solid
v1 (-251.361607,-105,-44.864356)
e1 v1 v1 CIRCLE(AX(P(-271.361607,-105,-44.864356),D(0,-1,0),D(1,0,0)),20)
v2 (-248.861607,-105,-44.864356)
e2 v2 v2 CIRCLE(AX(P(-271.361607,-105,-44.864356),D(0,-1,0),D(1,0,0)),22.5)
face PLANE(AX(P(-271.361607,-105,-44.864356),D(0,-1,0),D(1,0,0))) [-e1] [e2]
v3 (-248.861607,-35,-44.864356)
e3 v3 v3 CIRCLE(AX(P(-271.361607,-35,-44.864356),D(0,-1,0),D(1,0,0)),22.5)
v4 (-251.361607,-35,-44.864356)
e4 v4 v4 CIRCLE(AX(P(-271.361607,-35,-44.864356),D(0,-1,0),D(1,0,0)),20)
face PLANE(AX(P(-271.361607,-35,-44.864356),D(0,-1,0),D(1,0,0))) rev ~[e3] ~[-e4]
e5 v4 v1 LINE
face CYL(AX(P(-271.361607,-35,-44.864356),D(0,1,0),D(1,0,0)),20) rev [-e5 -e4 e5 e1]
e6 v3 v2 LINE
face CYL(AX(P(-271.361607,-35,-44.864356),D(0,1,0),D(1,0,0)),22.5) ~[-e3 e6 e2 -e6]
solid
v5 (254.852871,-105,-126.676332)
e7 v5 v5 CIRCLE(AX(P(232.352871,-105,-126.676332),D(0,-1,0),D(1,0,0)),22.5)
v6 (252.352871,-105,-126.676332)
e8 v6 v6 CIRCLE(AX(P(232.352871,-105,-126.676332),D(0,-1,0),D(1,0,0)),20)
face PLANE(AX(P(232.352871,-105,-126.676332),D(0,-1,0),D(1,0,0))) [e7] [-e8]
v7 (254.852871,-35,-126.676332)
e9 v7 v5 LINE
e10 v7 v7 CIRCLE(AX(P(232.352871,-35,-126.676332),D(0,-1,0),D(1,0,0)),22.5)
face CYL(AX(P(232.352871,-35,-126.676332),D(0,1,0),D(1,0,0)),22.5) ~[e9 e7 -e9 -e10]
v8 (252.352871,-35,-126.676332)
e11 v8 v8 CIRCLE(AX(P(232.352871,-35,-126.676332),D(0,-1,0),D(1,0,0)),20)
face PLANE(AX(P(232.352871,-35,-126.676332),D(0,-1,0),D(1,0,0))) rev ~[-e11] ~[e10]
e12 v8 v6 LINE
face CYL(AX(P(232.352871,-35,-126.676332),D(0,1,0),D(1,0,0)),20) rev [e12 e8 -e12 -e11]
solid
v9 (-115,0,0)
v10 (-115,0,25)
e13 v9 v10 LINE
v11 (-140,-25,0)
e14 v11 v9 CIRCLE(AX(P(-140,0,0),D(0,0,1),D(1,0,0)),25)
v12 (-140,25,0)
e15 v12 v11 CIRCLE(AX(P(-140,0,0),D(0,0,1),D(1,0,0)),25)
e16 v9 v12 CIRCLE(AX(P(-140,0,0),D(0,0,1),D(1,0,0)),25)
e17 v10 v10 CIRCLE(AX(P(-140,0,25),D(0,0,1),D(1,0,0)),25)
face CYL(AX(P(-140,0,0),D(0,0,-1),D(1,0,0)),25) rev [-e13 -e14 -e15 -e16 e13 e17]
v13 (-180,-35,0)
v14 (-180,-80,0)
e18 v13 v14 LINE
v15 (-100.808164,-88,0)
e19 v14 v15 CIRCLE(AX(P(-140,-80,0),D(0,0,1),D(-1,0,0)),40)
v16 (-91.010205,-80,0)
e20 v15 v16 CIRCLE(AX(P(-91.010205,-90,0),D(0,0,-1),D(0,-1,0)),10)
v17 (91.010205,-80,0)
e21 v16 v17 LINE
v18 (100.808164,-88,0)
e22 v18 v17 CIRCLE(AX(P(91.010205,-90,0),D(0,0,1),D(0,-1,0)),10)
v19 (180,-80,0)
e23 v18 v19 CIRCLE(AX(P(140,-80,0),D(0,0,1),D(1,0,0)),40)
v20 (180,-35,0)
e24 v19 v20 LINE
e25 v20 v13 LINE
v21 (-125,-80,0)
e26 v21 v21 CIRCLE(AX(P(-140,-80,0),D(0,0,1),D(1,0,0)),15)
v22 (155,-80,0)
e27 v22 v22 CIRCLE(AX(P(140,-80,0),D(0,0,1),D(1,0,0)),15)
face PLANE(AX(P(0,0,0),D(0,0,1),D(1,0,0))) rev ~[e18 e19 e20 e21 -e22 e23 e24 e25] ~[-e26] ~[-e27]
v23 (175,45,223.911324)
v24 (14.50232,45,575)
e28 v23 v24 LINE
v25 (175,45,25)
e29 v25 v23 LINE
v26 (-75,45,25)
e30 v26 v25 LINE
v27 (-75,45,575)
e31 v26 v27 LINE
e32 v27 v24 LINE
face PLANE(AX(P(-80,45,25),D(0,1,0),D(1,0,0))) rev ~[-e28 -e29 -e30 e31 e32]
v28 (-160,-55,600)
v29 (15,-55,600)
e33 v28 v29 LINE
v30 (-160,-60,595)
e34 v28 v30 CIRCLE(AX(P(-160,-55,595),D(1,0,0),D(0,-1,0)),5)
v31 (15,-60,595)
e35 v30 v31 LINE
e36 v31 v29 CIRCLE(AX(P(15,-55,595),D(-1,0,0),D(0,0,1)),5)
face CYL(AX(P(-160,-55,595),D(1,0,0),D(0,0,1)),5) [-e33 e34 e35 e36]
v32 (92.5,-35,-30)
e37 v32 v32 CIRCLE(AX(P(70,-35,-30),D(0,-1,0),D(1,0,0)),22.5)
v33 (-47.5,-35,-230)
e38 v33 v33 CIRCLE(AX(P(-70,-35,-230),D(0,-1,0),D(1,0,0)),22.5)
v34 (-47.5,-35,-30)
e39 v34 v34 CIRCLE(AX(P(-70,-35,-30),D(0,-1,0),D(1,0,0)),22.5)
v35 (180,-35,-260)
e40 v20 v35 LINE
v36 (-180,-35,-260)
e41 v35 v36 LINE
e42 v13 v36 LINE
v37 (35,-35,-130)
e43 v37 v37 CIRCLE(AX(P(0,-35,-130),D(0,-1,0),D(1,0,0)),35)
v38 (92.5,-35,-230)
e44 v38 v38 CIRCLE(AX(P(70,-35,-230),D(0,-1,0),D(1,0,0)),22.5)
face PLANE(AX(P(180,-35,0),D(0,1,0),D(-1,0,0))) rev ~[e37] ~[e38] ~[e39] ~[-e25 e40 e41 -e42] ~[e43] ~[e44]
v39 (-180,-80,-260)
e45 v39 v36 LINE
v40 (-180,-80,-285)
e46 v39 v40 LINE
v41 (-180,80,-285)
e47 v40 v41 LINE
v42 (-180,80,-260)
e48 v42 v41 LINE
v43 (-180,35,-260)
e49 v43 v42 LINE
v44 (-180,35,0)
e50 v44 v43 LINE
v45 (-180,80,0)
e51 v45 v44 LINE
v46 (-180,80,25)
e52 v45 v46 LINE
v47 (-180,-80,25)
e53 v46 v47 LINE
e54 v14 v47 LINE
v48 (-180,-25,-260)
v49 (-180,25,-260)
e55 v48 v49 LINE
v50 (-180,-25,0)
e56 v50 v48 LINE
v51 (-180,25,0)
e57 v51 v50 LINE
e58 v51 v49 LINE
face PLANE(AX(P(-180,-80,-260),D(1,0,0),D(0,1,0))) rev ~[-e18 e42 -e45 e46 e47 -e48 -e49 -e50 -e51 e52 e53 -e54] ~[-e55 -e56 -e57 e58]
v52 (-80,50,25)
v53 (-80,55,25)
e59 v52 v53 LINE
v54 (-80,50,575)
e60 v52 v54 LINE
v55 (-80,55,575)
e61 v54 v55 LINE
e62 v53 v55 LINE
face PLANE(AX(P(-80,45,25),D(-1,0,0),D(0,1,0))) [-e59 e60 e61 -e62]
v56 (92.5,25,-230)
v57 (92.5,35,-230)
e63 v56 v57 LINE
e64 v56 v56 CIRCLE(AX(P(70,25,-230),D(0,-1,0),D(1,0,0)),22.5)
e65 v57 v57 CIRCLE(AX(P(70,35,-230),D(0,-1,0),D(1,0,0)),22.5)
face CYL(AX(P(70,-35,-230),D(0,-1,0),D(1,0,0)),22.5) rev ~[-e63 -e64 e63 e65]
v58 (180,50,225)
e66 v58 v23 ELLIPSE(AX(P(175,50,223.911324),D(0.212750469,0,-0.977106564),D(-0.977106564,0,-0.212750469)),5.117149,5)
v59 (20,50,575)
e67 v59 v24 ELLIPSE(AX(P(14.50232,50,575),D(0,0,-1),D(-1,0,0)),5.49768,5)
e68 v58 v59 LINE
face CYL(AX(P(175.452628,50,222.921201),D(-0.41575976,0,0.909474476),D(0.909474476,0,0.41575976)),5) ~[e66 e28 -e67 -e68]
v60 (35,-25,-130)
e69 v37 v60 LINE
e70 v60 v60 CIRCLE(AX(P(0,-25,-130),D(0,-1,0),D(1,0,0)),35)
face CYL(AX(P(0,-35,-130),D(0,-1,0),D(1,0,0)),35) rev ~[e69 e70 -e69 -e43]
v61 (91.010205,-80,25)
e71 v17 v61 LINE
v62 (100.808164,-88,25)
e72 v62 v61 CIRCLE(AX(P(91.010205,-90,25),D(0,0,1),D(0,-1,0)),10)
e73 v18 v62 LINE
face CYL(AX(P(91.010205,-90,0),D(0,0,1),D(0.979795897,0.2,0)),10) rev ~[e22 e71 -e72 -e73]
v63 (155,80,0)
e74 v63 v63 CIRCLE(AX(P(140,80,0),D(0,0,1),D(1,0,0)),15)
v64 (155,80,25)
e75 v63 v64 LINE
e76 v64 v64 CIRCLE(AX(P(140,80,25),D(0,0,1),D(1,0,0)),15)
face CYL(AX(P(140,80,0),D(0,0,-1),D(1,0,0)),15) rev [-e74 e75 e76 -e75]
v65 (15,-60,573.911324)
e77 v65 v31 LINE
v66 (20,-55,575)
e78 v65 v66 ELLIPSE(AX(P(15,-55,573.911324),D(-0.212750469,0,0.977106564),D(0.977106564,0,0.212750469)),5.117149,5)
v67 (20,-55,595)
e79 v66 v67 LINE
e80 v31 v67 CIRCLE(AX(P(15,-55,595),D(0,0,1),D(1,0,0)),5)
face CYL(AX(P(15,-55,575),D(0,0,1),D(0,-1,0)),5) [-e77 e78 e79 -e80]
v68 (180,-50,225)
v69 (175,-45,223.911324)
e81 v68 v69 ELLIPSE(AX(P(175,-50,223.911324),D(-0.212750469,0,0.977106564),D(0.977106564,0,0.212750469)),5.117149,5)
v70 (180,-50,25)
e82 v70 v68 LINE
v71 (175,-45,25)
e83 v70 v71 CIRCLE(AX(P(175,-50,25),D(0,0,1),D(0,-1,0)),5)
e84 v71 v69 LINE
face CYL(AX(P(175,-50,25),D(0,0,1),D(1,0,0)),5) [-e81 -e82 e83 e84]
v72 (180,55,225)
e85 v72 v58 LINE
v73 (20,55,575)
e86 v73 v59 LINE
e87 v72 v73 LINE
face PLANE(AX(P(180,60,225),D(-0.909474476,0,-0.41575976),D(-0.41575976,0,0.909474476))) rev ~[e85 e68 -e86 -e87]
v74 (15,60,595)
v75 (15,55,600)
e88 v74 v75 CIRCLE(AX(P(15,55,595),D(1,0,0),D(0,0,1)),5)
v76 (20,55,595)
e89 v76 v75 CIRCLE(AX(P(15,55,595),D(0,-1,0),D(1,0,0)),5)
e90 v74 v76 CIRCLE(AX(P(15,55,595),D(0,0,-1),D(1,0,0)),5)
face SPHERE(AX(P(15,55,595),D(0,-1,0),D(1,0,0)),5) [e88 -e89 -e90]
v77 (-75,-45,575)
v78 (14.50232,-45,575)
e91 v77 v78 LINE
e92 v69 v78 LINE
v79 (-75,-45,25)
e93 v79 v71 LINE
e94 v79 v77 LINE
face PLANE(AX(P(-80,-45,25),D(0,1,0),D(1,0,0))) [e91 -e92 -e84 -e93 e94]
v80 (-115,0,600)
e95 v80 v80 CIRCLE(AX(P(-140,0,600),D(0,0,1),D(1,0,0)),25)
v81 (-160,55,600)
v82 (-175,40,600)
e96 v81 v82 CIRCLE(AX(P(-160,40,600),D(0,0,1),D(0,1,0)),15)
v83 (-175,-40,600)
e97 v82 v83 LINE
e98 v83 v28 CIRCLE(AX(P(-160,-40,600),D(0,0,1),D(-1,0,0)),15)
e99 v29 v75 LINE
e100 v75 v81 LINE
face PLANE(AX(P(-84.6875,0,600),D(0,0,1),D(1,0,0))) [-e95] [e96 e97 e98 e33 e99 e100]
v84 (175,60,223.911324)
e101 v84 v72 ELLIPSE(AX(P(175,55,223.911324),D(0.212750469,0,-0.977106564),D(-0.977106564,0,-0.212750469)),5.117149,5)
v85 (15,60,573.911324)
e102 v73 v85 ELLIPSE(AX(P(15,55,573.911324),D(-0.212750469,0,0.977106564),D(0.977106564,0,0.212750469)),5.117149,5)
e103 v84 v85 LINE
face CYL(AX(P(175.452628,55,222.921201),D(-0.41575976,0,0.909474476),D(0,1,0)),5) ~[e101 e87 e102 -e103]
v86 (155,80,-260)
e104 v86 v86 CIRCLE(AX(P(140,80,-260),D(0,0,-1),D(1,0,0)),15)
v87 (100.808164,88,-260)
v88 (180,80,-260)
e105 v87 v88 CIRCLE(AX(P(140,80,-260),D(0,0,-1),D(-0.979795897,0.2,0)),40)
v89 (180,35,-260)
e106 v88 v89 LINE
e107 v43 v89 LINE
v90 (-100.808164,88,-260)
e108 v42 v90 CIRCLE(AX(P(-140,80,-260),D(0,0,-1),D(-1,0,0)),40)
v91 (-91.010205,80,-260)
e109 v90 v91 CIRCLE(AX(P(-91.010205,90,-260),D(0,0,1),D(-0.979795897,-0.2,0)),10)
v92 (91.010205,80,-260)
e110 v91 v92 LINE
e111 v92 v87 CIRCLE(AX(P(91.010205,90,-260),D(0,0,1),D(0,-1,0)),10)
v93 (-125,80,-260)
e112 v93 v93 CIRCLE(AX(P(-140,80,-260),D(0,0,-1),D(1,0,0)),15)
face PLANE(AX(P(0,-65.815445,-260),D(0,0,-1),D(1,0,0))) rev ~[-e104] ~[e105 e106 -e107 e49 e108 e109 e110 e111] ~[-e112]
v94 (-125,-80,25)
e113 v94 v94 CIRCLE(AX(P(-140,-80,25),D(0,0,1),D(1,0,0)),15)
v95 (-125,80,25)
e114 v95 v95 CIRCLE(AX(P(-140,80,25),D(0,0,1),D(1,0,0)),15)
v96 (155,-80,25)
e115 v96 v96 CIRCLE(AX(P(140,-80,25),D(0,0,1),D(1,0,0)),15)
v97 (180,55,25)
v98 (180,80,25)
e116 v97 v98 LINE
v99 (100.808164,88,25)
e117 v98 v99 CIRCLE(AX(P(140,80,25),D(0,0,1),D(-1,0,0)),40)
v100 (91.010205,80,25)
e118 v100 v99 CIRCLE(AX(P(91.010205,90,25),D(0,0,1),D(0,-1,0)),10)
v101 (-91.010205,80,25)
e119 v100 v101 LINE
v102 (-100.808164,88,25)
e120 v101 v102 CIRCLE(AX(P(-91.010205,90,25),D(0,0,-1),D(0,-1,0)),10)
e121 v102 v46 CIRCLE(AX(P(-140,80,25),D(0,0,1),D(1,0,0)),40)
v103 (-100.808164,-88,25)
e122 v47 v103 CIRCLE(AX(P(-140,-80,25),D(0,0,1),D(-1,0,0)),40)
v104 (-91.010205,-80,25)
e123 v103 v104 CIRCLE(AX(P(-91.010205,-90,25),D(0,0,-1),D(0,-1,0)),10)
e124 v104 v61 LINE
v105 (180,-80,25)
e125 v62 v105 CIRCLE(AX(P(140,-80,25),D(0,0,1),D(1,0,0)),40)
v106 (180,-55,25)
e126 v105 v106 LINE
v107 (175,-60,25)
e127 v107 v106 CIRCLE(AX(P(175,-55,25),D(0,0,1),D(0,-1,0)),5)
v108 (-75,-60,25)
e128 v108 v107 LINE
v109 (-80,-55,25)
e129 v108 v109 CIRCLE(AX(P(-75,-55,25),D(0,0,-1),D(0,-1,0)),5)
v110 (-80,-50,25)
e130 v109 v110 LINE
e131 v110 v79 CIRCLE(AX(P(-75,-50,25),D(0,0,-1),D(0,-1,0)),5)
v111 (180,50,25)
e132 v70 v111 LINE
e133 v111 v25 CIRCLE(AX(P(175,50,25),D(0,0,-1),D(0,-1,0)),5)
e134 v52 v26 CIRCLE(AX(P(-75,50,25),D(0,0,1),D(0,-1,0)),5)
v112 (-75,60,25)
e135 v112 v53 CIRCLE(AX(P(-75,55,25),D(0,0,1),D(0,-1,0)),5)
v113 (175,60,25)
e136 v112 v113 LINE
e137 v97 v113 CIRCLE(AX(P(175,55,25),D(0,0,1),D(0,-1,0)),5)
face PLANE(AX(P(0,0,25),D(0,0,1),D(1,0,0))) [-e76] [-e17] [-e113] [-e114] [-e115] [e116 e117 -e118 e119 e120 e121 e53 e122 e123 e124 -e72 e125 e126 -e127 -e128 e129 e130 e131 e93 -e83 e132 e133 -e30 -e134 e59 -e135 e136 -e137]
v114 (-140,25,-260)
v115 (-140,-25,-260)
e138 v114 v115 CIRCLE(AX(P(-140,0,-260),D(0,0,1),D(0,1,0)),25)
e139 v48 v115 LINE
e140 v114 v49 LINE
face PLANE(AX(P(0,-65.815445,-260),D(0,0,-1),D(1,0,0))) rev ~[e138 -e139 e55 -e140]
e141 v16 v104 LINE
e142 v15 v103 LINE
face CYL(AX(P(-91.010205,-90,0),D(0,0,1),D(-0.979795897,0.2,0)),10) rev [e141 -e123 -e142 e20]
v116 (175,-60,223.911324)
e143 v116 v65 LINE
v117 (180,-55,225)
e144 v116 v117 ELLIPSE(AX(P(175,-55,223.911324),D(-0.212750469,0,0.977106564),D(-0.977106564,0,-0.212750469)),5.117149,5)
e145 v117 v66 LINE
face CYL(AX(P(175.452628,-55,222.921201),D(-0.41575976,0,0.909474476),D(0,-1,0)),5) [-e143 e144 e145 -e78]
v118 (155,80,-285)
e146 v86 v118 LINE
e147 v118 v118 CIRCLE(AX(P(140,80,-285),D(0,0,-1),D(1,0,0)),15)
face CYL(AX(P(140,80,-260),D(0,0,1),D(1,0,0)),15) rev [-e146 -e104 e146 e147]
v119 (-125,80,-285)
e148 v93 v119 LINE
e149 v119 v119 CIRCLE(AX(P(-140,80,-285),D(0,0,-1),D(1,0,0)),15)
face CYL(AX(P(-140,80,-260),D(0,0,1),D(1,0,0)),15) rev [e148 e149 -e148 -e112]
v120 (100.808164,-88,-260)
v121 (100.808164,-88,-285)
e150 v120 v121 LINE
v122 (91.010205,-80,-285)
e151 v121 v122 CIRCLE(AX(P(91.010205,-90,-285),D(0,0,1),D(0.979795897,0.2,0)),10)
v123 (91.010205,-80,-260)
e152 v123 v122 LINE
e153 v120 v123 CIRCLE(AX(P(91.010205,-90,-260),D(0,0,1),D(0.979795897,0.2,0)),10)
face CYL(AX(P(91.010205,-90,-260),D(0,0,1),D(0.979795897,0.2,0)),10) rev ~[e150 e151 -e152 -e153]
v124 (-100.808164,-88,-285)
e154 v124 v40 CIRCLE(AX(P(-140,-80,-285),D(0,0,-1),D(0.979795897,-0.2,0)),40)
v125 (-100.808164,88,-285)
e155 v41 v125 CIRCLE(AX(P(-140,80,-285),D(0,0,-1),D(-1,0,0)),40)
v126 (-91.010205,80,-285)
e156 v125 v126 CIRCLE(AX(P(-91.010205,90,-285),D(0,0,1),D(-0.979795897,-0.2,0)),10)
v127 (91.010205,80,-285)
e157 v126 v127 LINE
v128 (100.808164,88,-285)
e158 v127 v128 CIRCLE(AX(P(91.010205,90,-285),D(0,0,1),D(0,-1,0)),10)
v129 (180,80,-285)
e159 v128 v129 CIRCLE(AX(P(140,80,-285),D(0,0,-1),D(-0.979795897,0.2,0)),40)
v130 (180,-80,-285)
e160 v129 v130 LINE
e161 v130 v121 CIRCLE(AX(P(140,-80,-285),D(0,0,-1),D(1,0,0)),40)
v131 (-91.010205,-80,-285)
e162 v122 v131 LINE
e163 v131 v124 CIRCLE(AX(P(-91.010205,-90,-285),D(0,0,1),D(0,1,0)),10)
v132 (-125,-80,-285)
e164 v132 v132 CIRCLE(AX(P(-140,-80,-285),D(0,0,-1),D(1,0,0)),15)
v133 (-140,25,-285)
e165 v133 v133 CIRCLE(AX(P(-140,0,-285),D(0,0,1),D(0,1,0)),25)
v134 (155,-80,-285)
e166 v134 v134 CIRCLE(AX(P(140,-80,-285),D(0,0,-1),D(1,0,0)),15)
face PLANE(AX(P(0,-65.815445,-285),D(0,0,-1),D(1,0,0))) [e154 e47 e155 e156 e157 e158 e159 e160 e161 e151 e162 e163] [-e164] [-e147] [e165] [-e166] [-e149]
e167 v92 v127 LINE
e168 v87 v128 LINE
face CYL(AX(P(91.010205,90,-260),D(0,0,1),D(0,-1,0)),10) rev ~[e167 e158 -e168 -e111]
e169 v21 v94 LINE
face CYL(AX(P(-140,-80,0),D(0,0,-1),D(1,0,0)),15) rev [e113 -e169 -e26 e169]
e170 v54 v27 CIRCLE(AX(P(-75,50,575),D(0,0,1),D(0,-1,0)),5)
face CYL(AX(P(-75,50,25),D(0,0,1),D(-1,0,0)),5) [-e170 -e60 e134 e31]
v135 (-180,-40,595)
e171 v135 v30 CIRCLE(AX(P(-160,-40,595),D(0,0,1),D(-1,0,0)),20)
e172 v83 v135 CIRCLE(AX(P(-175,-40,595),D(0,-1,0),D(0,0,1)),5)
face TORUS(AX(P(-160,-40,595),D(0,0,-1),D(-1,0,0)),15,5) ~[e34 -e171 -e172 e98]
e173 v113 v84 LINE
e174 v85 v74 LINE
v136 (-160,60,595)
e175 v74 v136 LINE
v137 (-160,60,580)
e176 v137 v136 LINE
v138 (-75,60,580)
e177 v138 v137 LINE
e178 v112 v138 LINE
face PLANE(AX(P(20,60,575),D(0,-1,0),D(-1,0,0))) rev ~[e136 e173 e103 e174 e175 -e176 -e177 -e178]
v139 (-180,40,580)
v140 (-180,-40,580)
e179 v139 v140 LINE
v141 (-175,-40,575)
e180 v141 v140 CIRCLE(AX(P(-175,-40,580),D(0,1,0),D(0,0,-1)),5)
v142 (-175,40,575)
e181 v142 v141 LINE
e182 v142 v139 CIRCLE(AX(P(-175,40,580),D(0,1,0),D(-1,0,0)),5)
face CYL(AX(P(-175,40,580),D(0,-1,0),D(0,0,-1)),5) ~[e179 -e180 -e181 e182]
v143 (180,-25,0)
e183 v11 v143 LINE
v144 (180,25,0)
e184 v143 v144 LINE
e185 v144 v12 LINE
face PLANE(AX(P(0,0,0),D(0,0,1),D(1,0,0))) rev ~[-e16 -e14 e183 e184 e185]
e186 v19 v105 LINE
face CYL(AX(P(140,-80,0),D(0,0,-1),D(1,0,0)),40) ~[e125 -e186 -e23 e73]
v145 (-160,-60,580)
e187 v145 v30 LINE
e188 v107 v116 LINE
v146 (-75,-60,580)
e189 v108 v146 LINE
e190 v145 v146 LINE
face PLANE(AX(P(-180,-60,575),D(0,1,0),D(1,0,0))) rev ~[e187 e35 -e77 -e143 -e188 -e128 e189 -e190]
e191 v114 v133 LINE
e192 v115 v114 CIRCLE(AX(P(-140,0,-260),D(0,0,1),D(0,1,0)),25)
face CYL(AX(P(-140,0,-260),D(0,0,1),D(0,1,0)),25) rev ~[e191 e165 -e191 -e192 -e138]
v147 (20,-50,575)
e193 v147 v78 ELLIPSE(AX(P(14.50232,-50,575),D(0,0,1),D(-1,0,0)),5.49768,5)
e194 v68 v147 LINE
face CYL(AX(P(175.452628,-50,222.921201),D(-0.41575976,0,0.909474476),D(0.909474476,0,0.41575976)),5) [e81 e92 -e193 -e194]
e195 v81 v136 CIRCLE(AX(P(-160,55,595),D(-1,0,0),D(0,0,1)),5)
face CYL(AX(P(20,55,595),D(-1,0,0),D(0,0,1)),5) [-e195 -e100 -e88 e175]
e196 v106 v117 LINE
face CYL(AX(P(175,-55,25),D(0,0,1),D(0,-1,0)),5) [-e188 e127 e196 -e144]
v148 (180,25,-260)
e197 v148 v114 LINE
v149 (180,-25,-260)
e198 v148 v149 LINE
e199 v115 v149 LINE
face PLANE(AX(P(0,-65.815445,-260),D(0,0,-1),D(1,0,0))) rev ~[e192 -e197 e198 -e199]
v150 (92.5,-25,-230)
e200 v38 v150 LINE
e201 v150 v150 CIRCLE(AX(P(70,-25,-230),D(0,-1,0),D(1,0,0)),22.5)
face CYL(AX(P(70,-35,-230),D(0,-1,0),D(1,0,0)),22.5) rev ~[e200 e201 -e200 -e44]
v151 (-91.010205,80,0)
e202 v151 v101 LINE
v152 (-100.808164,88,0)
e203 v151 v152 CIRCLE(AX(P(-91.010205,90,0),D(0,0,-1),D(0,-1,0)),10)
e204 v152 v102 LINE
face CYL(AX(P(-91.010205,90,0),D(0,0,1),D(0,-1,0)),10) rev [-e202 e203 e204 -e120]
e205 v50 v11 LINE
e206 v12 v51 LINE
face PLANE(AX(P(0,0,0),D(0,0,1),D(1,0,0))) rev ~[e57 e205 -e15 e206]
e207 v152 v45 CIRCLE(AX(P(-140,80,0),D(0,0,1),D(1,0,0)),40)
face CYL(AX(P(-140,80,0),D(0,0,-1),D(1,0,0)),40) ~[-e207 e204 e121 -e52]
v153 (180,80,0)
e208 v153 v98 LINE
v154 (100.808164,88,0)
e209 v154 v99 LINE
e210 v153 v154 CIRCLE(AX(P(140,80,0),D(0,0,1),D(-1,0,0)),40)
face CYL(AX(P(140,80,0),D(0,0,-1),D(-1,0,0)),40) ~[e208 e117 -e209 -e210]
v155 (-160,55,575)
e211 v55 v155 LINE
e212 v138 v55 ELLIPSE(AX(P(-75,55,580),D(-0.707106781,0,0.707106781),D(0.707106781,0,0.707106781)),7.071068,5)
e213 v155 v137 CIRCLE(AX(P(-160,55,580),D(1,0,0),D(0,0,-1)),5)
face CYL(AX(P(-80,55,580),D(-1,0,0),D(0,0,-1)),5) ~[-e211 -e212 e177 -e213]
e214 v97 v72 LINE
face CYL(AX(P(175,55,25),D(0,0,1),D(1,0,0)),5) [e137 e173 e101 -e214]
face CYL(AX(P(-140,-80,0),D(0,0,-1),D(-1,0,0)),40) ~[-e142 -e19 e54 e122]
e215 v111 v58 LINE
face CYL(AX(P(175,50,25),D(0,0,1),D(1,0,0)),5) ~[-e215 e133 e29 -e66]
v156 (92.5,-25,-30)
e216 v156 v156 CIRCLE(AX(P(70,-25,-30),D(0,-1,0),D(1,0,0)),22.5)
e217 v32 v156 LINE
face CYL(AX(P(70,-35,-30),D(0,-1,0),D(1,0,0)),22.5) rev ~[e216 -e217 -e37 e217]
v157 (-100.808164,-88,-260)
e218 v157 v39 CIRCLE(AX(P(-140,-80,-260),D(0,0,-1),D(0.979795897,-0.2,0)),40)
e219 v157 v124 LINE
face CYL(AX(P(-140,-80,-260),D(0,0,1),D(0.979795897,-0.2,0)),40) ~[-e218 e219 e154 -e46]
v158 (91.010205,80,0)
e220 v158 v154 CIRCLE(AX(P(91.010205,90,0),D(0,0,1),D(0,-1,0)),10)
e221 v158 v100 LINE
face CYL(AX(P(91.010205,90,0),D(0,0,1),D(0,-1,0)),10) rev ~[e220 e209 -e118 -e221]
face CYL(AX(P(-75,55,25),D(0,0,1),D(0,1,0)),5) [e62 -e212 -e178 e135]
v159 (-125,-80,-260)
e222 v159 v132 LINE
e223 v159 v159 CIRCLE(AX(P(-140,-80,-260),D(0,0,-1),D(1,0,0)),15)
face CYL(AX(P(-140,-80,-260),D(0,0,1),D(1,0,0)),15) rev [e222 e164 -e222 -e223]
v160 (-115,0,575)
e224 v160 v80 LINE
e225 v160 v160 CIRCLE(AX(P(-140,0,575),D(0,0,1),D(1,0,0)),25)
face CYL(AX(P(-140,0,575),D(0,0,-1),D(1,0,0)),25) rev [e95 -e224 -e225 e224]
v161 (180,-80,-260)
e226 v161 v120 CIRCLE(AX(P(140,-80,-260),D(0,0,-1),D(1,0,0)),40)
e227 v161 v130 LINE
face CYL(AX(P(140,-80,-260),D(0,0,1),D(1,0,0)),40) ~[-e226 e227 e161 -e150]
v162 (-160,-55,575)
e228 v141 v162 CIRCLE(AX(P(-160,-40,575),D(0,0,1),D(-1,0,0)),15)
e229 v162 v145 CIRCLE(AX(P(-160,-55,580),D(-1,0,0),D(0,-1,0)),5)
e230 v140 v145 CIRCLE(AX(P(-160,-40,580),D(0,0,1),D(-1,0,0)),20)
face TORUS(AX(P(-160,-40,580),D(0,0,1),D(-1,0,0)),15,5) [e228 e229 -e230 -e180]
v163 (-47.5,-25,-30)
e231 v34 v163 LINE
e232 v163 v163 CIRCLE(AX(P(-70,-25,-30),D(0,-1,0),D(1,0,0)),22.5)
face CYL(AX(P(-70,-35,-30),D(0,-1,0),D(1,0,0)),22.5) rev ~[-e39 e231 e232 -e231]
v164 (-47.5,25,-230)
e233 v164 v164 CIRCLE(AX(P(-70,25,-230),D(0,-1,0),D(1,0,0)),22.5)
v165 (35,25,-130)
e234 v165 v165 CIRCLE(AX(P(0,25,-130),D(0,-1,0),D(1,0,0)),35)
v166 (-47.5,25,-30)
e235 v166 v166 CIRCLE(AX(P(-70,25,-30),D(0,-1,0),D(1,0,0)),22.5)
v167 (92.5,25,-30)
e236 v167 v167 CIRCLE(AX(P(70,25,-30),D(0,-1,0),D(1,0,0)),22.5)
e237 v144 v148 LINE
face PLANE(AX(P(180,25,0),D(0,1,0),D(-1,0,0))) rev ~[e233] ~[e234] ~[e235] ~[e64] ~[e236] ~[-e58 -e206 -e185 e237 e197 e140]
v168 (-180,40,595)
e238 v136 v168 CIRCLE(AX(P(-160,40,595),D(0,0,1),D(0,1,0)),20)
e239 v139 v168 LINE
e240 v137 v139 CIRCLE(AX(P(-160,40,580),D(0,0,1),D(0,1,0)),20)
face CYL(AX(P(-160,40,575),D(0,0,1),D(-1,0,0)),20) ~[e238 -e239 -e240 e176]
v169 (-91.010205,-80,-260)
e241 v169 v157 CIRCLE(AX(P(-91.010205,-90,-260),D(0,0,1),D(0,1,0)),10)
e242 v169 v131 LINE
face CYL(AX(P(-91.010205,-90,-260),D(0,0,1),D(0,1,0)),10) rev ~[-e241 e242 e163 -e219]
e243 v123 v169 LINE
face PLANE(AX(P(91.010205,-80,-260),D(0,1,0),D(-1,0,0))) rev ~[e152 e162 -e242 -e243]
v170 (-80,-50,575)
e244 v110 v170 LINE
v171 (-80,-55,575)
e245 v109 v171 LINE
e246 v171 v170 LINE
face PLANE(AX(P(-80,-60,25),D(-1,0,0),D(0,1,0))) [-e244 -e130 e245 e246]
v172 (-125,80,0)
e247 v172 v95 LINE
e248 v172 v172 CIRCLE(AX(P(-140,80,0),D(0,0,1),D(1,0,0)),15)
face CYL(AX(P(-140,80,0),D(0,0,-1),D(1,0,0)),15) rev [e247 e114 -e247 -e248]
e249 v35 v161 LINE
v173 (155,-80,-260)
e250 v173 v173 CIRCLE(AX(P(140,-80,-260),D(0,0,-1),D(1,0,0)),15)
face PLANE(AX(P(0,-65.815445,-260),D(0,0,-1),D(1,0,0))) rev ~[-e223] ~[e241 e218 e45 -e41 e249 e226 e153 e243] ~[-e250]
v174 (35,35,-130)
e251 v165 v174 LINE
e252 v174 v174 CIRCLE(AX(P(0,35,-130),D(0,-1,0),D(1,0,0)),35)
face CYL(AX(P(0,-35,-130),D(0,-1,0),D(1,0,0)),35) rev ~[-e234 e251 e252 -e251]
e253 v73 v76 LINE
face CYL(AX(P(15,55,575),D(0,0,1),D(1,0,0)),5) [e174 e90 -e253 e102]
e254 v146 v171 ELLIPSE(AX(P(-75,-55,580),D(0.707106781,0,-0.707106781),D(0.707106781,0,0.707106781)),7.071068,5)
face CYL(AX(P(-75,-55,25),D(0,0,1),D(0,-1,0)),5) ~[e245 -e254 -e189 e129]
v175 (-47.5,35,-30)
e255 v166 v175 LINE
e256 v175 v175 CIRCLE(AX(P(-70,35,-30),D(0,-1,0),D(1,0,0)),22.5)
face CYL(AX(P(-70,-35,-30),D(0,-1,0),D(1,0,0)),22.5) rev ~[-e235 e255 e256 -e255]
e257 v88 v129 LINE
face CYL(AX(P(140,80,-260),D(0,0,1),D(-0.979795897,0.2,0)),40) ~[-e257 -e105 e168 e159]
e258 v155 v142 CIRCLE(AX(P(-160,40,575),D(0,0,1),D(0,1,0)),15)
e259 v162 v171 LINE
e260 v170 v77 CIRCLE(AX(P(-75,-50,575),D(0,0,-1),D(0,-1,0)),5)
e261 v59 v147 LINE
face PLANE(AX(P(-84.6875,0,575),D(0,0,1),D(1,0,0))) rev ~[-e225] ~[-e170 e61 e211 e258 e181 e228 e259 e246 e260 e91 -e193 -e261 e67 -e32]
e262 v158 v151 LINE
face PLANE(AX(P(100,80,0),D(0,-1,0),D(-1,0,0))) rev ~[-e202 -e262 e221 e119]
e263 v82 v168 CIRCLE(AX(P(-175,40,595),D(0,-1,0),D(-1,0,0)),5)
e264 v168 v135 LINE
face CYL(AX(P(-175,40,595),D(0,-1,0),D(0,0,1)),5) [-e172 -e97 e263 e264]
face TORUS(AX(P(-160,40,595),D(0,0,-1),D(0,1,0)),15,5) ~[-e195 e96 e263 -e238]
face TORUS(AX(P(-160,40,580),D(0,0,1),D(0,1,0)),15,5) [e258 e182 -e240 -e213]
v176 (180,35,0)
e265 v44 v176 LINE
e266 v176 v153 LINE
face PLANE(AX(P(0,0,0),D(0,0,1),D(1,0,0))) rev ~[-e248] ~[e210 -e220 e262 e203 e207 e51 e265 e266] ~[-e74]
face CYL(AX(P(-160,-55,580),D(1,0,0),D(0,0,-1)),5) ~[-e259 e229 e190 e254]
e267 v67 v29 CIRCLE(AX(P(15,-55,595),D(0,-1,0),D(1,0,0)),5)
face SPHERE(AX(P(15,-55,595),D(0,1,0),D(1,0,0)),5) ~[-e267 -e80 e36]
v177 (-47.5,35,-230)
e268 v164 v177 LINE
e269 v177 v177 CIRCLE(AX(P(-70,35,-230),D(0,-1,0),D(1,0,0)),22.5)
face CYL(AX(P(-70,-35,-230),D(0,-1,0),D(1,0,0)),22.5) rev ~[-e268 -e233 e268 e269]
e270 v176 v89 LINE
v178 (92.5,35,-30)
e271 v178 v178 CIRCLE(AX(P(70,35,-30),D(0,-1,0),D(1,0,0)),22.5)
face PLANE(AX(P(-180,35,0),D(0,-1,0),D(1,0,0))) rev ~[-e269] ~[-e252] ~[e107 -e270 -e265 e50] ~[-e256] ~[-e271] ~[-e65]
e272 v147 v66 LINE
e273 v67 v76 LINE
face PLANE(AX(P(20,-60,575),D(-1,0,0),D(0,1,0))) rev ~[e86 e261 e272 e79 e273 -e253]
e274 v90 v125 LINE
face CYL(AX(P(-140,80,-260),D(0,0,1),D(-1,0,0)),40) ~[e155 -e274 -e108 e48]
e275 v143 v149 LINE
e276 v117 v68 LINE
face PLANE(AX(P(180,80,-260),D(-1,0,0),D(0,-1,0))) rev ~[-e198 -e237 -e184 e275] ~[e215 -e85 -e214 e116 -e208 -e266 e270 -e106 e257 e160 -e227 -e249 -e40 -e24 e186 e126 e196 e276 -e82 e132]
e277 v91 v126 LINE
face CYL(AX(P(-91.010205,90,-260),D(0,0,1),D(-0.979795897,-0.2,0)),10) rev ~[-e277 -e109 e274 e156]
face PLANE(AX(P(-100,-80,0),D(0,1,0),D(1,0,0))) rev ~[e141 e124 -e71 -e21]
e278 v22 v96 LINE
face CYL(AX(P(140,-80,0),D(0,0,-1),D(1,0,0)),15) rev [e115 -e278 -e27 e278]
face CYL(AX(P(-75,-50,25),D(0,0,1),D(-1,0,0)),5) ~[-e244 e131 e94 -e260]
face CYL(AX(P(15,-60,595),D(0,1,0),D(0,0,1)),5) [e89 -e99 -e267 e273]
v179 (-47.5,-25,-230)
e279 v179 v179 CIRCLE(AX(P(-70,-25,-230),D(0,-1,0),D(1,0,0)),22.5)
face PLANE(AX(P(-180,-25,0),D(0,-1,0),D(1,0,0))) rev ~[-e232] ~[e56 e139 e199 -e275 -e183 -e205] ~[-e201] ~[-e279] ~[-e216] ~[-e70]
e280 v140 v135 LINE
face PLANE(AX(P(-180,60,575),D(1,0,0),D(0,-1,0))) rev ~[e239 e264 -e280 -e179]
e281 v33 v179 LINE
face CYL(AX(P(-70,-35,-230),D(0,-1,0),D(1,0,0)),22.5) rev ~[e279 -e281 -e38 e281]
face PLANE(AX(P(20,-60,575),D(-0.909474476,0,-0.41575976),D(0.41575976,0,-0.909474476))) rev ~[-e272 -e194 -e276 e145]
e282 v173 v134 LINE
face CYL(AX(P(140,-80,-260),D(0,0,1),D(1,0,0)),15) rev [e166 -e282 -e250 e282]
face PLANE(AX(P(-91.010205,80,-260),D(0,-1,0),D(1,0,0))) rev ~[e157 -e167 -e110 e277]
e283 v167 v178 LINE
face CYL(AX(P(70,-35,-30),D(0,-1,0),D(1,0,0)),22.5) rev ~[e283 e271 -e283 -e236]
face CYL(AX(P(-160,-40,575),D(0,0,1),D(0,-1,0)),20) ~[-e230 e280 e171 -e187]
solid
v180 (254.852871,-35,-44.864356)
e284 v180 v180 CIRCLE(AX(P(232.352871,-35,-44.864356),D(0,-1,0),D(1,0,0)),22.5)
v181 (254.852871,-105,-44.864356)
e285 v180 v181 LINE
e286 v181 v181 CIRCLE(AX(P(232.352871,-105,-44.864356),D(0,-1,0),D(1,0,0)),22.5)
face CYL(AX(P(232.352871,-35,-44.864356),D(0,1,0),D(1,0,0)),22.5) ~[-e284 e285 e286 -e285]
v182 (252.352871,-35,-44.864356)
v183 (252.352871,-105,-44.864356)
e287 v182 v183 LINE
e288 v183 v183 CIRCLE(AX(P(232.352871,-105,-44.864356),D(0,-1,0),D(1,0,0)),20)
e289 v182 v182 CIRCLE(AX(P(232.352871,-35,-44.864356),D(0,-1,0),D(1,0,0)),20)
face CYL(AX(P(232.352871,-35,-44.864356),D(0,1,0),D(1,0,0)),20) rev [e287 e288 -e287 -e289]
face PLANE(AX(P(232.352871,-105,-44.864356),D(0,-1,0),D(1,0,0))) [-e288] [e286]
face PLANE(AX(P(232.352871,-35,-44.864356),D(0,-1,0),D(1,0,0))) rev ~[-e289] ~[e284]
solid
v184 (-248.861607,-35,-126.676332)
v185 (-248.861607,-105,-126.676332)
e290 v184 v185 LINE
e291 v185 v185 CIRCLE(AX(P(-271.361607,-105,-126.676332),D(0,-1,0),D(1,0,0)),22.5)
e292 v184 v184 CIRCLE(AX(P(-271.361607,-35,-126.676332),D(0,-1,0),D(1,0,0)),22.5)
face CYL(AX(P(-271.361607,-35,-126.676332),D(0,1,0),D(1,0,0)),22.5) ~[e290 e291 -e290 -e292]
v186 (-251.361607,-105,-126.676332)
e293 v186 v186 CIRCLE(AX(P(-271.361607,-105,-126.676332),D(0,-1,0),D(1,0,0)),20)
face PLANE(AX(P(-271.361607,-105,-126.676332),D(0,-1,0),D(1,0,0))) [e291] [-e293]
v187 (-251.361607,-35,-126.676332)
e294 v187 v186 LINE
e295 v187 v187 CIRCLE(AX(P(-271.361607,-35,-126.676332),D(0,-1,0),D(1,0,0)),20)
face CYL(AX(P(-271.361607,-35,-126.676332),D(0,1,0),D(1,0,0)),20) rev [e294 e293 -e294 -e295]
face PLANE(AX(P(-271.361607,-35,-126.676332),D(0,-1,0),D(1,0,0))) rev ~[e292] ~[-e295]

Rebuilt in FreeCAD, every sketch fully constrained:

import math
import FreeCAD as App
import Part
import Sketcher

V = App.Vector
Q = App.Units.Quantity


def edges_at(feature, points):
    """Names of the edges that pass closest to the given points."""
    edges = feature.Shape.Edges
    near = lambda p: min(range(len(edges)), key=lambda i: edges[i].distToShape(Part.Vertex(*p))[0])
    return sorted({f"Edge{near(p) + 1}" for p in points})


def add_polygon(sketch, points):
    """Adds a closed chain of lines whose ends are joined by coincident constraints."""
    first, n = sketch.GeometryCount, len(points)
    for a, b in zip(points, points[1:] + points[:1]):
        sketch.addGeometry(Part.LineSegment(App.Vector(*a, 0), App.Vector(*b, 0)), False)
    for i in range(n):
        sketch.addConstraint(Sketcher.Constraint("Coincident", first + i, 2, first + (i + 1) % n, 1))

doc = App.newDocument("Part")
body = doc.addObject("PartDesign::Body", "Body")

# Sketch on XY plane
sketch1 = body.newObject("Sketcher::SketchObject", "Sketch")
sketch1.AttachmentSupport = (doc.getObject("XY_Plane"), [""])
sketch1.MapMode = "FlatFace"
sketch1.addGeometry(Part.LineSegment(V(100, 80, 0), V(-100, 80, 0)), False)
sketch1.addGeometry(Part.ArcOfCircle(Part.Circle(V(-140, 80, 0), V(0, 0, 1), 40), math.radians(0), math.radians(180)), False)
sketch1.addGeometry(Part.LineSegment(V(-180, 80, 0), V(-180, -80, 0)), False)
sketch1.addGeometry(Part.ArcOfCircle(Part.Circle(V(-140, -80, 0), V(0, 0, 1), 40), math.radians(180), math.radians(360)), False)
sketch1.addGeometry(Part.LineSegment(V(-100, -80, 0), V(100, -80, 0)), False)
sketch1.addGeometry(Part.ArcOfCircle(Part.Circle(V(140, -80, 0), V(0, 0, 1), 40), math.radians(180), math.radians(360)), False)
sketch1.addGeometry(Part.LineSegment(V(180, -80, 0), V(180, 80, 0)), False)
sketch1.addGeometry(Part.ArcOfCircle(Part.Circle(V(140, 80, 0), V(0, 0, 1), 40), math.radians(0), math.radians(180)), False)
sketch1.addGeometry(Part.Circle(V(-140, -80, 0), V(0, 0, 1), 15), False)
sketch1.addGeometry(Part.Circle(V(140, -80, 0), V(0, 0, 1), 15), False)
sketch1.addGeometry(Part.Circle(V(-140, 0, 0), V(0, 0, 1), 25), False)
sketch1.addGeometry(Part.Circle(V(-140, 80, 0), V(0, 0, 1), 15), False)
sketch1.addGeometry(Part.Circle(V(140, 80, 0), V(0, 0, 1), 15), False)
sketch1.addConstraint(Sketcher.Constraint("Coincident", 0, 2, 1, 1))
sketch1.addConstraint(Sketcher.Constraint("Tangent", 1, 2, 2, 1))
sketch1.addConstraint(Sketcher.Constraint("Tangent", 2, 2, 3, 1))
sketch1.addConstraint(Sketcher.Constraint("Coincident", 3, 2, 4, 1))
sketch1.addConstraint(Sketcher.Constraint("Coincident", 4, 2, 5, 1))
sketch1.addConstraint(Sketcher.Constraint("Tangent", 5, 2, 6, 1))
sketch1.addConstraint(Sketcher.Constraint("Tangent", 6, 2, 7, 1))
sketch1.addConstraint(Sketcher.Constraint("Coincident", 7, 2, 0, 1))
sketch1.addConstraint(Sketcher.Constraint("Horizontal", 0))
sketch1.addConstraint(Sketcher.Constraint("Vertical", 2))
sketch1.addConstraint(Sketcher.Constraint("Horizontal", 4))
sketch1.addConstraint(Sketcher.Constraint("Vertical", 6))
sketch1.addConstraint(Sketcher.Constraint("Coincident", 8, 3, 3, 3))
sketch1.addConstraint(Sketcher.Constraint("Coincident", 9, 3, 5, 3))
sketch1.addConstraint(Sketcher.Constraint("Coincident", 11, 3, 1, 3))
sketch1.addConstraint(Sketcher.Constraint("Coincident", 12, 3, 7, 3))
sketch1.addConstraint(Sketcher.Constraint("Equal", 1, 3))
sketch1.addConstraint(Sketcher.Constraint("Equal", 3, 5))
sketch1.addConstraint(Sketcher.Constraint("Equal", 5, 7))
sketch1.addConstraint(Sketcher.Constraint("Equal", 8, 9))
sketch1.addConstraint(Sketcher.Constraint("Equal", 9, 11))
sketch1.addConstraint(Sketcher.Constraint("Equal", 11, 12))
sketch1.addConstraint(Sketcher.Constraint("Symmetric", 1, 3, 5, 3, -1, 1))
sketch1.addConstraint(Sketcher.Constraint("PointOnObject", 10, 3, -1))
sketch1.addConstraint(Sketcher.Constraint("Horizontal", 3, 3, 5, 3))
sketch1.addConstraint(Sketcher.Constraint("Horizontal", 1, 3, 7, 3))
sketch1.addConstraint(Sketcher.Constraint("Horizontal", 12, 3, 0, 2))
sketch1.addConstraint(Sketcher.Constraint("Horizontal", 2, 2, 3, 2))
sketch1.addConstraint(Sketcher.Constraint("Vertical", 8, 3, 10, 3))
sketch1.addConstraint(Sketcher.Constraint("Diameter", 8, Q("30 mm")))
sketch1.addConstraint(Sketcher.Constraint("Diameter", 10, Q("50 mm")))
sketch1.addConstraint(Sketcher.Constraint("Radius", 1, Q("40 mm")))
sketch1.addConstraint(Sketcher.Constraint("DistanceX", 0, 2, 0, 1, Q("200 mm")))
sketch1.addConstraint(Sketcher.Constraint("DistanceY", 2, 2, 2, 1, Q("160 mm")))
pad1 = body.newObject("PartDesign::Pad", "Pad")
pad1.Profile = sketch1
pad1.Length = 25
doc.recompute()

fillet = body.newObject("PartDesign::Fillet", "Fillet")
fillet.Base = (pad1, edges_at(pad1, [
    (-100, 80, 12.5),
    (100, 80, 12.5),
    (100, -80, 12.5),
    (-100, -80, 12.5),
]))
fillet.Radius = 10

# Sketch on XY plane
sketch2 = body.newObject("Sketcher::SketchObject", "Sketch001")
sketch2.AttachmentSupport = (doc.getObject("XY_Plane"), [""])
sketch2.MapMode = "FlatFace"
add_polygon(sketch2, [(-180, -35), (-180, -25), (180, -25), (180, -35)])  # lines 0-3
add_polygon(sketch2, [(-180, 25), (-180, 35), (180, 35), (180, 25)])  # lines 4-7
sketch2.addConstraint(Sketcher.Constraint("Vertical", 0))
sketch2.addConstraint(Sketcher.Constraint("Horizontal", 1))
sketch2.addConstraint(Sketcher.Constraint("Vertical", 2))
sketch2.addConstraint(Sketcher.Constraint("Horizontal", 3))
sketch2.addConstraint(Sketcher.Constraint("Vertical", 4))
sketch2.addConstraint(Sketcher.Constraint("Horizontal", 5))
sketch2.addConstraint(Sketcher.Constraint("Vertical", 6))
sketch2.addConstraint(Sketcher.Constraint("Horizontal", 7))
sketch2.addConstraint(Sketcher.Constraint("Symmetric", 2, 2, 4, 2, -1, 1))
sketch2.addConstraint(Sketcher.Constraint("Symmetric", 0, 2, 6, 2, -1, 1))
sketch2.addConstraint(Sketcher.Constraint("Vertical", 3, 2, 4, 2))
sketch2.addConstraint(Sketcher.Constraint("DistanceX", 1, 1, 1, 2, Q("360 mm")))
sketch2.addConstraint(Sketcher.Constraint("DistanceY", 0, 1, 0, 2, Q("10 mm")))
sketch2.addConstraint(Sketcher.Constraint("DistanceY", 0, 2, -1, 1, Q("25 mm")))
pad2 = body.newObject("PartDesign::Pad", "Pad001")
pad2.Profile = sketch2
pad2.Length = 260
pad2.Reversed = True

# Sketch on XY plane
sketch3 = body.newObject("Sketcher::SketchObject", "Sketch002")
sketch3.AttachmentSupport = (doc.getObject("XY_Plane"), [""])
sketch3.MapMode = "FlatFace"
sketch3.AttachmentOffset = App.Placement(V(0, 0, -260), App.Rotation())
sketch3.addGeometry(Part.LineSegment(V(-180, -80, 0), V(-180, 80, 0)), False)
sketch3.addGeometry(Part.ArcOfCircle(Part.Circle(V(-140, 80, 0), V(0, 0, 1), 40), math.radians(12), math.radians(180)), False)
sketch3.addGeometry(Part.ArcOfCircle(Part.Circle(V(-91, 90, 0), V(0, 0, 1), 10), math.radians(-168), math.radians(-90)), False)
sketch3.addGeometry(Part.LineSegment(V(-91, 80, 0), V(91, 80, 0)), False)
sketch3.addGeometry(Part.ArcOfCircle(Part.Circle(V(91, 90, 0), V(0, 0, 1), 10), math.radians(-90), math.radians(-12)), False)
sketch3.addGeometry(Part.ArcOfCircle(Part.Circle(V(140, 80, 0), V(0, 0, 1), 40), math.radians(0), math.radians(168)), False)
sketch3.addGeometry(Part.LineSegment(V(180, 80, 0), V(180, -80, 0)), False)
sketch3.addGeometry(Part.ArcOfCircle(Part.Circle(V(140, -80, 0), V(0, 0, 1), 40), math.radians(-168), math.radians(0)), False)
sketch3.addGeometry(Part.ArcOfCircle(Part.Circle(V(91, -90, 0), V(0, 0, 1), 10), math.radians(12), math.radians(90)), False)
sketch3.addGeometry(Part.LineSegment(V(91, -80, 0), V(-91, -80, 0)), False)
sketch3.addGeometry(Part.ArcOfCircle(Part.Circle(V(-91, -90, 0), V(0, 0, 1), 10), math.radians(90), math.radians(168)), False)
sketch3.addGeometry(Part.ArcOfCircle(Part.Circle(V(-140, -80, 0), V(0, 0, 1), 40), math.radians(180), math.radians(348)), False)
sketch3.addGeometry(Part.Circle(V(-140, 80, 0), V(0, 0, 1), 15), False)
sketch3.addGeometry(Part.Circle(V(140, 80, 0), V(0, 0, 1), 15), False)
sketch3.addGeometry(Part.Circle(V(-140, 0, 0), V(0, 0, 1), 25), False)
sketch3.addGeometry(Part.Circle(V(-140, -80, 0), V(0, 0, 1), 15), False)
sketch3.addGeometry(Part.Circle(V(140, -80, 0), V(0, 0, 1), 15), False)
sketch3.addConstraint(Sketcher.Constraint("Tangent", 0, 2, 1, 2))
sketch3.addConstraint(Sketcher.Constraint("Tangent", 1, 1, 2, 1))
sketch3.addConstraint(Sketcher.Constraint("Tangent", 2, 2, 3, 1))
sketch3.addConstraint(Sketcher.Constraint("Tangent", 3, 2, 4, 1))
sketch3.addConstraint(Sketcher.Constraint("Tangent", 4, 2, 5, 2))
sketch3.addConstraint(Sketcher.Constraint("Tangent", 5, 1, 6, 1))
sketch3.addConstraint(Sketcher.Constraint("Tangent", 6, 2, 7, 2))
sketch3.addConstraint(Sketcher.Constraint("Tangent", 7, 1, 8, 1))
sketch3.addConstraint(Sketcher.Constraint("Tangent", 8, 2, 9, 1))
sketch3.addConstraint(Sketcher.Constraint("Tangent", 9, 2, 10, 1))
sketch3.addConstraint(Sketcher.Constraint("Tangent", 10, 2, 11, 2))
sketch3.addConstraint(Sketcher.Constraint("Tangent", 11, 1, 0, 1))
sketch3.addConstraint(Sketcher.Constraint("Vertical", 0))
sketch3.addConstraint(Sketcher.Constraint("Horizontal", 3))
sketch3.addConstraint(Sketcher.Constraint("Vertical", 6))
sketch3.addConstraint(Sketcher.Constraint("Horizontal", 9))
sketch3.addConstraint(Sketcher.Constraint("Coincident", 12, 3, 1, 3))
sketch3.addConstraint(Sketcher.Constraint("Coincident", 13, 3, 5, 3))
sketch3.addConstraint(Sketcher.Constraint("Coincident", 15, 3, 11, 3))
sketch3.addConstraint(Sketcher.Constraint("Coincident", 16, 3, 7, 3))
sketch3.addConstraint(Sketcher.Constraint("Equal", 2, 4))
sketch3.addConstraint(Sketcher.Constraint("Equal", 1, 5))
sketch3.addConstraint(Sketcher.Constraint("Equal", 5, 7))
sketch3.addConstraint(Sketcher.Constraint("Equal", 4, 8))
sketch3.addConstraint(Sketcher.Constraint("Equal", 8, 10))
sketch3.addConstraint(Sketcher.Constraint("Equal", 7, 11))
sketch3.addConstraint(Sketcher.Constraint("Equal", 12, 13))
sketch3.addConstraint(Sketcher.Constraint("Equal", 13, 15))
sketch3.addConstraint(Sketcher.Constraint("Equal", 15, 16))
sketch3.addConstraint(Sketcher.Constraint("Symmetric", 1, 3, 7, 3, -1, 1))
sketch3.addConstraint(Sketcher.Constraint("Symmetric", 4, 3, 10, 3, -1, 1))
sketch3.addConstraint(Sketcher.Constraint("PointOnObject", 14, 3, -1))
sketch3.addConstraint(Sketcher.Constraint("Horizontal", 1, 3, 5, 3))
sketch3.addConstraint(Sketcher.Constraint("Horizontal", 0, 2, 2, 2))
sketch3.addConstraint(Sketcher.Constraint("Vertical", 12, 3, 14, 3))
sketch3.addConstraint(Sketcher.Constraint("Diameter", 12, Q("30 mm")))
sketch3.addConstraint(Sketcher.Constraint("Diameter", 14, Q("50 mm")))
sketch3.addConstraint(Sketcher.Constraint("Radius", 1, Q("40 mm")))
sketch3.addConstraint(Sketcher.Constraint("Radius", 2, Q("10 mm")))
sketch3.addConstraint(Sketcher.Constraint("DistanceY", 0, 1, 0, 2, Q("160 mm")))
sketch3.addConstraint(Sketcher.Constraint("DistanceX", 1, 3, -1, 1, Q("140 mm")))
pad3 = body.newObject("PartDesign::Pad", "Pad002")
pad3.Profile = sketch3
pad3.Length = 25
pad3.Reversed = True

# Sketch on XZ plane
sketch4 = body.newObject("Sketcher::SketchObject", "Sketch003")
sketch4.AttachmentSupport = (doc.getObject("XZ_Plane"), [""])
sketch4.MapMode = "FlatFace"
sketch4.AttachmentOffset = App.Placement(V(0, 0, 35), App.Rotation())
sketch4.addGeometry(Part.Circle(V(-70, -30, 0), V(0, 0, 1), 22), False)
sketch4.addGeometry(Part.Circle(V(70, -30, 0), V(0, 0, 1), 22), False)
sketch4.addGeometry(Part.Circle(V(0, -130, 0), V(0, 0, 1), 35), False)
sketch4.addGeometry(Part.Circle(V(70, -230, 0), V(0, 0, 1), 22), False)
sketch4.addGeometry(Part.Circle(V(-70, -230, 0), V(0, 0, 1), 22), False)
sketch4.addConstraint(Sketcher.Constraint("Equal", 0, 1))
sketch4.addConstraint(Sketcher.Constraint("Equal", 1, 3))
sketch4.addConstraint(Sketcher.Constraint("Equal", 3, 4))
sketch4.addConstraint(Sketcher.Constraint("Symmetric", 0, 3, 1, 3, -2))
sketch4.addConstraint(Sketcher.Constraint("Symmetric", 3, 3, 4, 3, -2))
sketch4.addConstraint(Sketcher.Constraint("PointOnObject", 2, 3, -2))
sketch4.addConstraint(Sketcher.Constraint("Vertical", 1, 3, 3, 3))
sketch4.addConstraint(Sketcher.Constraint("Diameter", 0, Q("45 mm")))
sketch4.addConstraint(Sketcher.Constraint("Diameter", 2, Q("70 mm")))
sketch4.addConstraint(Sketcher.Constraint("DistanceX", 0, 3, -1, 1, Q("70 mm")))
sketch4.addConstraint(Sketcher.Constraint("DistanceY", 0, 3, -1, 1, Q("30 mm")))
sketch4.addConstraint(Sketcher.Constraint("DistanceY", 2, 3, -1, 1, Q("130 mm")))
sketch4.addConstraint(Sketcher.Constraint("DistanceY", 3, 3, -1, 1, Q("230 mm")))
pocket1 = body.newObject("PartDesign::Pocket", "Pocket")
pocket1.Profile = sketch4
pocket1.Length = 70

# Sketch on XY plane
sketch5 = body.newObject("Sketcher::SketchObject", "Sketch004")
sketch5.AttachmentSupport = (doc.getObject("XY_Plane"), [""])
sketch5.MapMode = "FlatFace"
sketch5.AttachmentOffset = App.Placement(V(0, 0, 25), App.Rotation())
add_polygon(sketch5, [(-80, 60), (-80, 45), (180, 45), (180, 60)])  # lines 0-3
add_polygon(sketch5, [(-80, -45), (-80, -60), (180, -60), (180, -45)])  # lines 4-7
sketch5.addConstraint(Sketcher.Constraint("Vertical", 0))
sketch5.addConstraint(Sketcher.Constraint("Horizontal", 1))
sketch5.addConstraint(Sketcher.Constraint("Vertical", 2))
sketch5.addConstraint(Sketcher.Constraint("Horizontal", 3))
sketch5.addConstraint(Sketcher.Constraint("Vertical", 4))
sketch5.addConstraint(Sketcher.Constraint("Horizontal", 5))
sketch5.addConstraint(Sketcher.Constraint("Vertical", 6))
sketch5.addConstraint(Sketcher.Constraint("Horizontal", 7))
sketch5.addConstraint(Sketcher.Constraint("Symmetric", 3, 2, 4, 2, -1))
sketch5.addConstraint(Sketcher.Constraint("Symmetric", 1, 2, 6, 2, -1))
sketch5.addConstraint(Sketcher.Constraint("DistanceX", 1, 1, 1, 2, Q("260 mm")))
sketch5.addConstraint(Sketcher.Constraint("DistanceY", 0, 2, 0, 1, Q("15 mm")))
sketch5.addConstraint(Sketcher.Constraint("DistanceX", 0, 2, -1, 1, Q("80 mm")))
sketch5.addConstraint(Sketcher.Constraint("DistanceY", -1, 1, 0, 2, Q("45 mm")))
pad4 = body.newObject("PartDesign::Pad", "Pad003")
pad4.Profile = sketch5
pad4.Length = 550

# Sketch on XZ plane
sketch6 = body.newObject("Sketcher::SketchObject", "Sketch005")
sketch6.AttachmentSupport = (doc.getObject("XZ_Plane"), [""])
sketch6.MapMode = "FlatFace"
sketch6.AttachmentOffset = App.Placement(V(0, 0, 60), App.Rotation())
add_polygon(sketch6, [(180, 575), (20, 575), (180, 225)])  # lines 0-2
sketch6.addConstraint(Sketcher.Constraint("Horizontal", 0))
sketch6.addConstraint(Sketcher.Constraint("Vertical", 2))
sketch6.addConstraint(Sketcher.Constraint("DistanceX", 0, 2, 0, 1, Q("160 mm")))
sketch6.addConstraint(Sketcher.Constraint("DistanceY", 2, 1, 2, 2, Q("350 mm")))
sketch6.addConstraint(Sketcher.Constraint("DistanceX", -1, 1, 0, 2, Q("20 mm")))
sketch6.addConstraint(Sketcher.Constraint("DistanceY", -1, 1, 0, 2, Q("575 mm")))
pocket2 = body.newObject("PartDesign::Pocket", "Pocket001")
pocket2.Profile = sketch6
pocket2.Length = 70
pocket2.Midplane = True

# Sketch on XZ plane
sketch7 = body.newObject("Sketcher::SketchObject", "Sketch006")
sketch7.AttachmentSupport = (doc.getObject("XZ_Plane"), [""])
sketch7.MapMode = "FlatFace"
sketch7.AttachmentOffset = App.Placement(V(0, 0, -60), App.Rotation())
add_polygon(sketch7, [(180, 225), (20, 575), (180, 575)])  # lines 0-2
sketch7.addConstraint(Sketcher.Constraint("Horizontal", 1))
sketch7.addConstraint(Sketcher.Constraint("Vertical", 2))
sketch7.addConstraint(Sketcher.Constraint("DistanceX", 1, 1, 1, 2, Q("160 mm")))
sketch7.addConstraint(Sketcher.Constraint("DistanceY", 2, 2, 2, 1, Q("350 mm")))
sketch7.addConstraint(Sketcher.Constraint("DistanceX", -1, 1, 0, 2, Q("20 mm")))
sketch7.addConstraint(Sketcher.Constraint("DistanceY", -1, 1, 0, 2, Q("575 mm")))
pocket3 = body.newObject("PartDesign::Pocket", "Pocket002")
pocket3.Profile = sketch7
pocket3.Length = 70
pocket3.Reversed = True

# Sketch on XY plane
sketch8 = body.newObject("Sketcher::SketchObject", "Sketch007")
sketch8.AttachmentSupport = (doc.getObject("XY_Plane"), [""])
sketch8.MapMode = "FlatFace"
sketch8.AttachmentOffset = App.Placement(V(0, 0, 575), App.Rotation())
add_polygon(sketch8, [(-180, -60), (20, -60), (20, 60), (-180, 60)])  # lines 0-3
sketch8.addGeometry(Part.Circle(V(-140, 0, 0), V(0, 0, 1), 25), False)  # 4
sketch8.addConstraint(Sketcher.Constraint("Horizontal", 0))
sketch8.addConstraint(Sketcher.Constraint("Vertical", 1))
sketch8.addConstraint(Sketcher.Constraint("Horizontal", 2))
sketch8.addConstraint(Sketcher.Constraint("Vertical", 3))
sketch8.addConstraint(Sketcher.Constraint("PointOnObject", 4, 3, -1))
sketch8.addConstraint(Sketcher.Constraint("Diameter", 4, Q("50 mm")))
sketch8.addConstraint(Sketcher.Constraint("DistanceX", 0, 1, 0, 2, Q("200 mm")))
sketch8.addConstraint(Sketcher.Constraint("DistanceY", 1, 1, 1, 2, Q("120 mm")))
sketch8.addConstraint(Sketcher.Constraint("DistanceX", 4, 3, -1, 1, Q("140 mm")))
sketch8.addConstraint(Sketcher.Constraint("DistanceX", -1, 1, 0, 2, Q("20 mm")))
sketch8.addConstraint(Sketcher.Constraint("DistanceY", 0, 2, -1, 1, Q("60 mm")))
pad5 = body.newObject("PartDesign::Pad", "Pad004")
pad5.Profile = sketch8
pad5.Length = 25
doc.recompute()

fillet2 = body.newObject("PartDesign::Fillet", "Fillet001")
fillet2.Base = (pad5, edges_at(pad5, [(-180, 60, 587.5), (-180, -60, 587.5)]))
fillet2.Radius = 20
doc.recompute()

fillet3 = body.newObject("PartDesign::Fillet", "Fillet002")
fillet3.Base = (fillet2, edges_at(fillet2, [
    (20, 0, 600),
    (20, -60, 587.5),
    (20, 60, 587.5),
    (100, 60, 400),
    (100, 45, 400),
    (180, 45, 125),
    (180, 60, 125),
    (-80, 60, 300),
    (-80, 45, 300),
    (-80, -60, 300),
    (-80, -45, 300),
    (-180, 0, 600),
    (-180, 0, 575),
    (100, -60, 400),
    (180, -60, 125),
    (180, -45, 125),
    (100, -45, 400),
]))
fillet3.Radius = 5
body2 = doc.addObject("PartDesign::Body", "Body001")

# Sketch on XZ plane
sketch9 = body2.newObject("Sketcher::SketchObject", "Sketch008")
sketch9.AttachmentSupport = (doc.getObject("XZ_Plane001"), [""])
sketch9.MapMode = "FlatFace"
sketch9.AttachmentOffset = App.Placement(V(0, 0, 35), App.Rotation())
sketch9.addGeometry(Part.Circle(V(-271, -45, 0), V(0, 0, 1), 22), False)
sketch9.addGeometry(Part.Circle(V(-271, -45, 0), V(0, 0, 1), 20), False)
sketch9.addConstraint(Sketcher.Constraint("Coincident", 1, 3, 0, 3))
sketch9.addConstraint(Sketcher.Constraint("Diameter", 0, Q("45 mm")))
sketch9.addConstraint(Sketcher.Constraint("Diameter", 1, Q("40 mm")))
sketch9.addConstraint(Sketcher.Constraint("DistanceX", 0, 3, -1, 1, Q("271.361607 mm")))
sketch9.addConstraint(Sketcher.Constraint("DistanceY", 0, 3, -1, 1, Q("44.864356 mm")))
pad6 = body2.newObject("PartDesign::Pad", "Pad005")
pad6.Profile = sketch9
pad6.Length = 70
body3 = doc.addObject("PartDesign::Body", "Body002")

# Sketch on XZ plane
sketch10 = body3.newObject("Sketcher::SketchObject", "Sketch009")
sketch10.AttachmentSupport = (doc.getObject("XZ_Plane002"), [""])
sketch10.MapMode = "FlatFace"
sketch10.AttachmentOffset = App.Placement(V(0, 0, 35), App.Rotation())
sketch10.addGeometry(Part.Circle(V(-271, -127, 0), V(0, 0, 1), 22), False)
sketch10.addGeometry(Part.Circle(V(-271, -127, 0), V(0, 0, 1), 20), False)
sketch10.addConstraint(Sketcher.Constraint("Coincident", 1, 3, 0, 3))
sketch10.addConstraint(Sketcher.Constraint("Diameter", 0, Q("45 mm")))
sketch10.addConstraint(Sketcher.Constraint("Diameter", 1, Q("40 mm")))
sketch10.addConstraint(Sketcher.Constraint("DistanceX", 0, 3, -1, 1, Q("271.361607 mm")))
sketch10.addConstraint(Sketcher.Constraint("DistanceY", 0, 3, -1, 1, Q("126.676332 mm")))
pad7 = body3.newObject("PartDesign::Pad", "Pad006")
pad7.Profile = sketch10
pad7.Length = 70
body4 = doc.addObject("PartDesign::Body", "Body003")

# Sketch on XZ plane
sketch11 = body4.newObject("Sketcher::SketchObject", "Sketch010")
sketch11.AttachmentSupport = (doc.getObject("XZ_Plane003"), [""])
sketch11.MapMode = "FlatFace"
sketch11.AttachmentOffset = App.Placement(V(0, 0, 35), App.Rotation())
sketch11.addGeometry(Part.Circle(V(232, -45, 0), V(0, 0, 1), 22), False)
sketch11.addGeometry(Part.Circle(V(232, -45, 0), V(0, 0, 1), 20), False)
sketch11.addConstraint(Sketcher.Constraint("Coincident", 1, 3, 0, 3))
sketch11.addConstraint(Sketcher.Constraint("Diameter", 0, Q("45 mm")))
sketch11.addConstraint(Sketcher.Constraint("Diameter", 1, Q("40 mm")))
sketch11.addConstraint(Sketcher.Constraint("DistanceX", -1, 1, 0, 3, Q("232.352871 mm")))
sketch11.addConstraint(Sketcher.Constraint("DistanceY", 0, 3, -1, 1, Q("44.864356 mm")))
pad8 = body4.newObject("PartDesign::Pad", "Pad007")
pad8.Profile = sketch11
pad8.Length = 70
body5 = doc.addObject("PartDesign::Body", "Body004")

# Sketch on XZ plane
sketch12 = body5.newObject("Sketcher::SketchObject", "Sketch011")
sketch12.AttachmentSupport = (doc.getObject("XZ_Plane004"), [""])
sketch12.MapMode = "FlatFace"
sketch12.AttachmentOffset = App.Placement(V(0, 0, 35), App.Rotation())
sketch12.addGeometry(Part.Circle(V(232, -127, 0), V(0, 0, 1), 22), False)
sketch12.addGeometry(Part.Circle(V(232, -127, 0), V(0, 0, 1), 20), False)
sketch12.addConstraint(Sketcher.Constraint("Coincident", 1, 3, 0, 3))
sketch12.addConstraint(Sketcher.Constraint("Diameter", 0, Q("45 mm")))
sketch12.addConstraint(Sketcher.Constraint("Diameter", 1, Q("40 mm")))
sketch12.addConstraint(Sketcher.Constraint("DistanceX", -1, 1, 0, 3, Q("232.352871 mm")))
sketch12.addConstraint(Sketcher.Constraint("DistanceY", 0, 3, -1, 1, Q("126.676332 mm")))
pad9 = body5.newObject("PartDesign::Pad", "Pad008")
pad9.Profile = sketch12
pad9.Length = 70

doc.recompute()
